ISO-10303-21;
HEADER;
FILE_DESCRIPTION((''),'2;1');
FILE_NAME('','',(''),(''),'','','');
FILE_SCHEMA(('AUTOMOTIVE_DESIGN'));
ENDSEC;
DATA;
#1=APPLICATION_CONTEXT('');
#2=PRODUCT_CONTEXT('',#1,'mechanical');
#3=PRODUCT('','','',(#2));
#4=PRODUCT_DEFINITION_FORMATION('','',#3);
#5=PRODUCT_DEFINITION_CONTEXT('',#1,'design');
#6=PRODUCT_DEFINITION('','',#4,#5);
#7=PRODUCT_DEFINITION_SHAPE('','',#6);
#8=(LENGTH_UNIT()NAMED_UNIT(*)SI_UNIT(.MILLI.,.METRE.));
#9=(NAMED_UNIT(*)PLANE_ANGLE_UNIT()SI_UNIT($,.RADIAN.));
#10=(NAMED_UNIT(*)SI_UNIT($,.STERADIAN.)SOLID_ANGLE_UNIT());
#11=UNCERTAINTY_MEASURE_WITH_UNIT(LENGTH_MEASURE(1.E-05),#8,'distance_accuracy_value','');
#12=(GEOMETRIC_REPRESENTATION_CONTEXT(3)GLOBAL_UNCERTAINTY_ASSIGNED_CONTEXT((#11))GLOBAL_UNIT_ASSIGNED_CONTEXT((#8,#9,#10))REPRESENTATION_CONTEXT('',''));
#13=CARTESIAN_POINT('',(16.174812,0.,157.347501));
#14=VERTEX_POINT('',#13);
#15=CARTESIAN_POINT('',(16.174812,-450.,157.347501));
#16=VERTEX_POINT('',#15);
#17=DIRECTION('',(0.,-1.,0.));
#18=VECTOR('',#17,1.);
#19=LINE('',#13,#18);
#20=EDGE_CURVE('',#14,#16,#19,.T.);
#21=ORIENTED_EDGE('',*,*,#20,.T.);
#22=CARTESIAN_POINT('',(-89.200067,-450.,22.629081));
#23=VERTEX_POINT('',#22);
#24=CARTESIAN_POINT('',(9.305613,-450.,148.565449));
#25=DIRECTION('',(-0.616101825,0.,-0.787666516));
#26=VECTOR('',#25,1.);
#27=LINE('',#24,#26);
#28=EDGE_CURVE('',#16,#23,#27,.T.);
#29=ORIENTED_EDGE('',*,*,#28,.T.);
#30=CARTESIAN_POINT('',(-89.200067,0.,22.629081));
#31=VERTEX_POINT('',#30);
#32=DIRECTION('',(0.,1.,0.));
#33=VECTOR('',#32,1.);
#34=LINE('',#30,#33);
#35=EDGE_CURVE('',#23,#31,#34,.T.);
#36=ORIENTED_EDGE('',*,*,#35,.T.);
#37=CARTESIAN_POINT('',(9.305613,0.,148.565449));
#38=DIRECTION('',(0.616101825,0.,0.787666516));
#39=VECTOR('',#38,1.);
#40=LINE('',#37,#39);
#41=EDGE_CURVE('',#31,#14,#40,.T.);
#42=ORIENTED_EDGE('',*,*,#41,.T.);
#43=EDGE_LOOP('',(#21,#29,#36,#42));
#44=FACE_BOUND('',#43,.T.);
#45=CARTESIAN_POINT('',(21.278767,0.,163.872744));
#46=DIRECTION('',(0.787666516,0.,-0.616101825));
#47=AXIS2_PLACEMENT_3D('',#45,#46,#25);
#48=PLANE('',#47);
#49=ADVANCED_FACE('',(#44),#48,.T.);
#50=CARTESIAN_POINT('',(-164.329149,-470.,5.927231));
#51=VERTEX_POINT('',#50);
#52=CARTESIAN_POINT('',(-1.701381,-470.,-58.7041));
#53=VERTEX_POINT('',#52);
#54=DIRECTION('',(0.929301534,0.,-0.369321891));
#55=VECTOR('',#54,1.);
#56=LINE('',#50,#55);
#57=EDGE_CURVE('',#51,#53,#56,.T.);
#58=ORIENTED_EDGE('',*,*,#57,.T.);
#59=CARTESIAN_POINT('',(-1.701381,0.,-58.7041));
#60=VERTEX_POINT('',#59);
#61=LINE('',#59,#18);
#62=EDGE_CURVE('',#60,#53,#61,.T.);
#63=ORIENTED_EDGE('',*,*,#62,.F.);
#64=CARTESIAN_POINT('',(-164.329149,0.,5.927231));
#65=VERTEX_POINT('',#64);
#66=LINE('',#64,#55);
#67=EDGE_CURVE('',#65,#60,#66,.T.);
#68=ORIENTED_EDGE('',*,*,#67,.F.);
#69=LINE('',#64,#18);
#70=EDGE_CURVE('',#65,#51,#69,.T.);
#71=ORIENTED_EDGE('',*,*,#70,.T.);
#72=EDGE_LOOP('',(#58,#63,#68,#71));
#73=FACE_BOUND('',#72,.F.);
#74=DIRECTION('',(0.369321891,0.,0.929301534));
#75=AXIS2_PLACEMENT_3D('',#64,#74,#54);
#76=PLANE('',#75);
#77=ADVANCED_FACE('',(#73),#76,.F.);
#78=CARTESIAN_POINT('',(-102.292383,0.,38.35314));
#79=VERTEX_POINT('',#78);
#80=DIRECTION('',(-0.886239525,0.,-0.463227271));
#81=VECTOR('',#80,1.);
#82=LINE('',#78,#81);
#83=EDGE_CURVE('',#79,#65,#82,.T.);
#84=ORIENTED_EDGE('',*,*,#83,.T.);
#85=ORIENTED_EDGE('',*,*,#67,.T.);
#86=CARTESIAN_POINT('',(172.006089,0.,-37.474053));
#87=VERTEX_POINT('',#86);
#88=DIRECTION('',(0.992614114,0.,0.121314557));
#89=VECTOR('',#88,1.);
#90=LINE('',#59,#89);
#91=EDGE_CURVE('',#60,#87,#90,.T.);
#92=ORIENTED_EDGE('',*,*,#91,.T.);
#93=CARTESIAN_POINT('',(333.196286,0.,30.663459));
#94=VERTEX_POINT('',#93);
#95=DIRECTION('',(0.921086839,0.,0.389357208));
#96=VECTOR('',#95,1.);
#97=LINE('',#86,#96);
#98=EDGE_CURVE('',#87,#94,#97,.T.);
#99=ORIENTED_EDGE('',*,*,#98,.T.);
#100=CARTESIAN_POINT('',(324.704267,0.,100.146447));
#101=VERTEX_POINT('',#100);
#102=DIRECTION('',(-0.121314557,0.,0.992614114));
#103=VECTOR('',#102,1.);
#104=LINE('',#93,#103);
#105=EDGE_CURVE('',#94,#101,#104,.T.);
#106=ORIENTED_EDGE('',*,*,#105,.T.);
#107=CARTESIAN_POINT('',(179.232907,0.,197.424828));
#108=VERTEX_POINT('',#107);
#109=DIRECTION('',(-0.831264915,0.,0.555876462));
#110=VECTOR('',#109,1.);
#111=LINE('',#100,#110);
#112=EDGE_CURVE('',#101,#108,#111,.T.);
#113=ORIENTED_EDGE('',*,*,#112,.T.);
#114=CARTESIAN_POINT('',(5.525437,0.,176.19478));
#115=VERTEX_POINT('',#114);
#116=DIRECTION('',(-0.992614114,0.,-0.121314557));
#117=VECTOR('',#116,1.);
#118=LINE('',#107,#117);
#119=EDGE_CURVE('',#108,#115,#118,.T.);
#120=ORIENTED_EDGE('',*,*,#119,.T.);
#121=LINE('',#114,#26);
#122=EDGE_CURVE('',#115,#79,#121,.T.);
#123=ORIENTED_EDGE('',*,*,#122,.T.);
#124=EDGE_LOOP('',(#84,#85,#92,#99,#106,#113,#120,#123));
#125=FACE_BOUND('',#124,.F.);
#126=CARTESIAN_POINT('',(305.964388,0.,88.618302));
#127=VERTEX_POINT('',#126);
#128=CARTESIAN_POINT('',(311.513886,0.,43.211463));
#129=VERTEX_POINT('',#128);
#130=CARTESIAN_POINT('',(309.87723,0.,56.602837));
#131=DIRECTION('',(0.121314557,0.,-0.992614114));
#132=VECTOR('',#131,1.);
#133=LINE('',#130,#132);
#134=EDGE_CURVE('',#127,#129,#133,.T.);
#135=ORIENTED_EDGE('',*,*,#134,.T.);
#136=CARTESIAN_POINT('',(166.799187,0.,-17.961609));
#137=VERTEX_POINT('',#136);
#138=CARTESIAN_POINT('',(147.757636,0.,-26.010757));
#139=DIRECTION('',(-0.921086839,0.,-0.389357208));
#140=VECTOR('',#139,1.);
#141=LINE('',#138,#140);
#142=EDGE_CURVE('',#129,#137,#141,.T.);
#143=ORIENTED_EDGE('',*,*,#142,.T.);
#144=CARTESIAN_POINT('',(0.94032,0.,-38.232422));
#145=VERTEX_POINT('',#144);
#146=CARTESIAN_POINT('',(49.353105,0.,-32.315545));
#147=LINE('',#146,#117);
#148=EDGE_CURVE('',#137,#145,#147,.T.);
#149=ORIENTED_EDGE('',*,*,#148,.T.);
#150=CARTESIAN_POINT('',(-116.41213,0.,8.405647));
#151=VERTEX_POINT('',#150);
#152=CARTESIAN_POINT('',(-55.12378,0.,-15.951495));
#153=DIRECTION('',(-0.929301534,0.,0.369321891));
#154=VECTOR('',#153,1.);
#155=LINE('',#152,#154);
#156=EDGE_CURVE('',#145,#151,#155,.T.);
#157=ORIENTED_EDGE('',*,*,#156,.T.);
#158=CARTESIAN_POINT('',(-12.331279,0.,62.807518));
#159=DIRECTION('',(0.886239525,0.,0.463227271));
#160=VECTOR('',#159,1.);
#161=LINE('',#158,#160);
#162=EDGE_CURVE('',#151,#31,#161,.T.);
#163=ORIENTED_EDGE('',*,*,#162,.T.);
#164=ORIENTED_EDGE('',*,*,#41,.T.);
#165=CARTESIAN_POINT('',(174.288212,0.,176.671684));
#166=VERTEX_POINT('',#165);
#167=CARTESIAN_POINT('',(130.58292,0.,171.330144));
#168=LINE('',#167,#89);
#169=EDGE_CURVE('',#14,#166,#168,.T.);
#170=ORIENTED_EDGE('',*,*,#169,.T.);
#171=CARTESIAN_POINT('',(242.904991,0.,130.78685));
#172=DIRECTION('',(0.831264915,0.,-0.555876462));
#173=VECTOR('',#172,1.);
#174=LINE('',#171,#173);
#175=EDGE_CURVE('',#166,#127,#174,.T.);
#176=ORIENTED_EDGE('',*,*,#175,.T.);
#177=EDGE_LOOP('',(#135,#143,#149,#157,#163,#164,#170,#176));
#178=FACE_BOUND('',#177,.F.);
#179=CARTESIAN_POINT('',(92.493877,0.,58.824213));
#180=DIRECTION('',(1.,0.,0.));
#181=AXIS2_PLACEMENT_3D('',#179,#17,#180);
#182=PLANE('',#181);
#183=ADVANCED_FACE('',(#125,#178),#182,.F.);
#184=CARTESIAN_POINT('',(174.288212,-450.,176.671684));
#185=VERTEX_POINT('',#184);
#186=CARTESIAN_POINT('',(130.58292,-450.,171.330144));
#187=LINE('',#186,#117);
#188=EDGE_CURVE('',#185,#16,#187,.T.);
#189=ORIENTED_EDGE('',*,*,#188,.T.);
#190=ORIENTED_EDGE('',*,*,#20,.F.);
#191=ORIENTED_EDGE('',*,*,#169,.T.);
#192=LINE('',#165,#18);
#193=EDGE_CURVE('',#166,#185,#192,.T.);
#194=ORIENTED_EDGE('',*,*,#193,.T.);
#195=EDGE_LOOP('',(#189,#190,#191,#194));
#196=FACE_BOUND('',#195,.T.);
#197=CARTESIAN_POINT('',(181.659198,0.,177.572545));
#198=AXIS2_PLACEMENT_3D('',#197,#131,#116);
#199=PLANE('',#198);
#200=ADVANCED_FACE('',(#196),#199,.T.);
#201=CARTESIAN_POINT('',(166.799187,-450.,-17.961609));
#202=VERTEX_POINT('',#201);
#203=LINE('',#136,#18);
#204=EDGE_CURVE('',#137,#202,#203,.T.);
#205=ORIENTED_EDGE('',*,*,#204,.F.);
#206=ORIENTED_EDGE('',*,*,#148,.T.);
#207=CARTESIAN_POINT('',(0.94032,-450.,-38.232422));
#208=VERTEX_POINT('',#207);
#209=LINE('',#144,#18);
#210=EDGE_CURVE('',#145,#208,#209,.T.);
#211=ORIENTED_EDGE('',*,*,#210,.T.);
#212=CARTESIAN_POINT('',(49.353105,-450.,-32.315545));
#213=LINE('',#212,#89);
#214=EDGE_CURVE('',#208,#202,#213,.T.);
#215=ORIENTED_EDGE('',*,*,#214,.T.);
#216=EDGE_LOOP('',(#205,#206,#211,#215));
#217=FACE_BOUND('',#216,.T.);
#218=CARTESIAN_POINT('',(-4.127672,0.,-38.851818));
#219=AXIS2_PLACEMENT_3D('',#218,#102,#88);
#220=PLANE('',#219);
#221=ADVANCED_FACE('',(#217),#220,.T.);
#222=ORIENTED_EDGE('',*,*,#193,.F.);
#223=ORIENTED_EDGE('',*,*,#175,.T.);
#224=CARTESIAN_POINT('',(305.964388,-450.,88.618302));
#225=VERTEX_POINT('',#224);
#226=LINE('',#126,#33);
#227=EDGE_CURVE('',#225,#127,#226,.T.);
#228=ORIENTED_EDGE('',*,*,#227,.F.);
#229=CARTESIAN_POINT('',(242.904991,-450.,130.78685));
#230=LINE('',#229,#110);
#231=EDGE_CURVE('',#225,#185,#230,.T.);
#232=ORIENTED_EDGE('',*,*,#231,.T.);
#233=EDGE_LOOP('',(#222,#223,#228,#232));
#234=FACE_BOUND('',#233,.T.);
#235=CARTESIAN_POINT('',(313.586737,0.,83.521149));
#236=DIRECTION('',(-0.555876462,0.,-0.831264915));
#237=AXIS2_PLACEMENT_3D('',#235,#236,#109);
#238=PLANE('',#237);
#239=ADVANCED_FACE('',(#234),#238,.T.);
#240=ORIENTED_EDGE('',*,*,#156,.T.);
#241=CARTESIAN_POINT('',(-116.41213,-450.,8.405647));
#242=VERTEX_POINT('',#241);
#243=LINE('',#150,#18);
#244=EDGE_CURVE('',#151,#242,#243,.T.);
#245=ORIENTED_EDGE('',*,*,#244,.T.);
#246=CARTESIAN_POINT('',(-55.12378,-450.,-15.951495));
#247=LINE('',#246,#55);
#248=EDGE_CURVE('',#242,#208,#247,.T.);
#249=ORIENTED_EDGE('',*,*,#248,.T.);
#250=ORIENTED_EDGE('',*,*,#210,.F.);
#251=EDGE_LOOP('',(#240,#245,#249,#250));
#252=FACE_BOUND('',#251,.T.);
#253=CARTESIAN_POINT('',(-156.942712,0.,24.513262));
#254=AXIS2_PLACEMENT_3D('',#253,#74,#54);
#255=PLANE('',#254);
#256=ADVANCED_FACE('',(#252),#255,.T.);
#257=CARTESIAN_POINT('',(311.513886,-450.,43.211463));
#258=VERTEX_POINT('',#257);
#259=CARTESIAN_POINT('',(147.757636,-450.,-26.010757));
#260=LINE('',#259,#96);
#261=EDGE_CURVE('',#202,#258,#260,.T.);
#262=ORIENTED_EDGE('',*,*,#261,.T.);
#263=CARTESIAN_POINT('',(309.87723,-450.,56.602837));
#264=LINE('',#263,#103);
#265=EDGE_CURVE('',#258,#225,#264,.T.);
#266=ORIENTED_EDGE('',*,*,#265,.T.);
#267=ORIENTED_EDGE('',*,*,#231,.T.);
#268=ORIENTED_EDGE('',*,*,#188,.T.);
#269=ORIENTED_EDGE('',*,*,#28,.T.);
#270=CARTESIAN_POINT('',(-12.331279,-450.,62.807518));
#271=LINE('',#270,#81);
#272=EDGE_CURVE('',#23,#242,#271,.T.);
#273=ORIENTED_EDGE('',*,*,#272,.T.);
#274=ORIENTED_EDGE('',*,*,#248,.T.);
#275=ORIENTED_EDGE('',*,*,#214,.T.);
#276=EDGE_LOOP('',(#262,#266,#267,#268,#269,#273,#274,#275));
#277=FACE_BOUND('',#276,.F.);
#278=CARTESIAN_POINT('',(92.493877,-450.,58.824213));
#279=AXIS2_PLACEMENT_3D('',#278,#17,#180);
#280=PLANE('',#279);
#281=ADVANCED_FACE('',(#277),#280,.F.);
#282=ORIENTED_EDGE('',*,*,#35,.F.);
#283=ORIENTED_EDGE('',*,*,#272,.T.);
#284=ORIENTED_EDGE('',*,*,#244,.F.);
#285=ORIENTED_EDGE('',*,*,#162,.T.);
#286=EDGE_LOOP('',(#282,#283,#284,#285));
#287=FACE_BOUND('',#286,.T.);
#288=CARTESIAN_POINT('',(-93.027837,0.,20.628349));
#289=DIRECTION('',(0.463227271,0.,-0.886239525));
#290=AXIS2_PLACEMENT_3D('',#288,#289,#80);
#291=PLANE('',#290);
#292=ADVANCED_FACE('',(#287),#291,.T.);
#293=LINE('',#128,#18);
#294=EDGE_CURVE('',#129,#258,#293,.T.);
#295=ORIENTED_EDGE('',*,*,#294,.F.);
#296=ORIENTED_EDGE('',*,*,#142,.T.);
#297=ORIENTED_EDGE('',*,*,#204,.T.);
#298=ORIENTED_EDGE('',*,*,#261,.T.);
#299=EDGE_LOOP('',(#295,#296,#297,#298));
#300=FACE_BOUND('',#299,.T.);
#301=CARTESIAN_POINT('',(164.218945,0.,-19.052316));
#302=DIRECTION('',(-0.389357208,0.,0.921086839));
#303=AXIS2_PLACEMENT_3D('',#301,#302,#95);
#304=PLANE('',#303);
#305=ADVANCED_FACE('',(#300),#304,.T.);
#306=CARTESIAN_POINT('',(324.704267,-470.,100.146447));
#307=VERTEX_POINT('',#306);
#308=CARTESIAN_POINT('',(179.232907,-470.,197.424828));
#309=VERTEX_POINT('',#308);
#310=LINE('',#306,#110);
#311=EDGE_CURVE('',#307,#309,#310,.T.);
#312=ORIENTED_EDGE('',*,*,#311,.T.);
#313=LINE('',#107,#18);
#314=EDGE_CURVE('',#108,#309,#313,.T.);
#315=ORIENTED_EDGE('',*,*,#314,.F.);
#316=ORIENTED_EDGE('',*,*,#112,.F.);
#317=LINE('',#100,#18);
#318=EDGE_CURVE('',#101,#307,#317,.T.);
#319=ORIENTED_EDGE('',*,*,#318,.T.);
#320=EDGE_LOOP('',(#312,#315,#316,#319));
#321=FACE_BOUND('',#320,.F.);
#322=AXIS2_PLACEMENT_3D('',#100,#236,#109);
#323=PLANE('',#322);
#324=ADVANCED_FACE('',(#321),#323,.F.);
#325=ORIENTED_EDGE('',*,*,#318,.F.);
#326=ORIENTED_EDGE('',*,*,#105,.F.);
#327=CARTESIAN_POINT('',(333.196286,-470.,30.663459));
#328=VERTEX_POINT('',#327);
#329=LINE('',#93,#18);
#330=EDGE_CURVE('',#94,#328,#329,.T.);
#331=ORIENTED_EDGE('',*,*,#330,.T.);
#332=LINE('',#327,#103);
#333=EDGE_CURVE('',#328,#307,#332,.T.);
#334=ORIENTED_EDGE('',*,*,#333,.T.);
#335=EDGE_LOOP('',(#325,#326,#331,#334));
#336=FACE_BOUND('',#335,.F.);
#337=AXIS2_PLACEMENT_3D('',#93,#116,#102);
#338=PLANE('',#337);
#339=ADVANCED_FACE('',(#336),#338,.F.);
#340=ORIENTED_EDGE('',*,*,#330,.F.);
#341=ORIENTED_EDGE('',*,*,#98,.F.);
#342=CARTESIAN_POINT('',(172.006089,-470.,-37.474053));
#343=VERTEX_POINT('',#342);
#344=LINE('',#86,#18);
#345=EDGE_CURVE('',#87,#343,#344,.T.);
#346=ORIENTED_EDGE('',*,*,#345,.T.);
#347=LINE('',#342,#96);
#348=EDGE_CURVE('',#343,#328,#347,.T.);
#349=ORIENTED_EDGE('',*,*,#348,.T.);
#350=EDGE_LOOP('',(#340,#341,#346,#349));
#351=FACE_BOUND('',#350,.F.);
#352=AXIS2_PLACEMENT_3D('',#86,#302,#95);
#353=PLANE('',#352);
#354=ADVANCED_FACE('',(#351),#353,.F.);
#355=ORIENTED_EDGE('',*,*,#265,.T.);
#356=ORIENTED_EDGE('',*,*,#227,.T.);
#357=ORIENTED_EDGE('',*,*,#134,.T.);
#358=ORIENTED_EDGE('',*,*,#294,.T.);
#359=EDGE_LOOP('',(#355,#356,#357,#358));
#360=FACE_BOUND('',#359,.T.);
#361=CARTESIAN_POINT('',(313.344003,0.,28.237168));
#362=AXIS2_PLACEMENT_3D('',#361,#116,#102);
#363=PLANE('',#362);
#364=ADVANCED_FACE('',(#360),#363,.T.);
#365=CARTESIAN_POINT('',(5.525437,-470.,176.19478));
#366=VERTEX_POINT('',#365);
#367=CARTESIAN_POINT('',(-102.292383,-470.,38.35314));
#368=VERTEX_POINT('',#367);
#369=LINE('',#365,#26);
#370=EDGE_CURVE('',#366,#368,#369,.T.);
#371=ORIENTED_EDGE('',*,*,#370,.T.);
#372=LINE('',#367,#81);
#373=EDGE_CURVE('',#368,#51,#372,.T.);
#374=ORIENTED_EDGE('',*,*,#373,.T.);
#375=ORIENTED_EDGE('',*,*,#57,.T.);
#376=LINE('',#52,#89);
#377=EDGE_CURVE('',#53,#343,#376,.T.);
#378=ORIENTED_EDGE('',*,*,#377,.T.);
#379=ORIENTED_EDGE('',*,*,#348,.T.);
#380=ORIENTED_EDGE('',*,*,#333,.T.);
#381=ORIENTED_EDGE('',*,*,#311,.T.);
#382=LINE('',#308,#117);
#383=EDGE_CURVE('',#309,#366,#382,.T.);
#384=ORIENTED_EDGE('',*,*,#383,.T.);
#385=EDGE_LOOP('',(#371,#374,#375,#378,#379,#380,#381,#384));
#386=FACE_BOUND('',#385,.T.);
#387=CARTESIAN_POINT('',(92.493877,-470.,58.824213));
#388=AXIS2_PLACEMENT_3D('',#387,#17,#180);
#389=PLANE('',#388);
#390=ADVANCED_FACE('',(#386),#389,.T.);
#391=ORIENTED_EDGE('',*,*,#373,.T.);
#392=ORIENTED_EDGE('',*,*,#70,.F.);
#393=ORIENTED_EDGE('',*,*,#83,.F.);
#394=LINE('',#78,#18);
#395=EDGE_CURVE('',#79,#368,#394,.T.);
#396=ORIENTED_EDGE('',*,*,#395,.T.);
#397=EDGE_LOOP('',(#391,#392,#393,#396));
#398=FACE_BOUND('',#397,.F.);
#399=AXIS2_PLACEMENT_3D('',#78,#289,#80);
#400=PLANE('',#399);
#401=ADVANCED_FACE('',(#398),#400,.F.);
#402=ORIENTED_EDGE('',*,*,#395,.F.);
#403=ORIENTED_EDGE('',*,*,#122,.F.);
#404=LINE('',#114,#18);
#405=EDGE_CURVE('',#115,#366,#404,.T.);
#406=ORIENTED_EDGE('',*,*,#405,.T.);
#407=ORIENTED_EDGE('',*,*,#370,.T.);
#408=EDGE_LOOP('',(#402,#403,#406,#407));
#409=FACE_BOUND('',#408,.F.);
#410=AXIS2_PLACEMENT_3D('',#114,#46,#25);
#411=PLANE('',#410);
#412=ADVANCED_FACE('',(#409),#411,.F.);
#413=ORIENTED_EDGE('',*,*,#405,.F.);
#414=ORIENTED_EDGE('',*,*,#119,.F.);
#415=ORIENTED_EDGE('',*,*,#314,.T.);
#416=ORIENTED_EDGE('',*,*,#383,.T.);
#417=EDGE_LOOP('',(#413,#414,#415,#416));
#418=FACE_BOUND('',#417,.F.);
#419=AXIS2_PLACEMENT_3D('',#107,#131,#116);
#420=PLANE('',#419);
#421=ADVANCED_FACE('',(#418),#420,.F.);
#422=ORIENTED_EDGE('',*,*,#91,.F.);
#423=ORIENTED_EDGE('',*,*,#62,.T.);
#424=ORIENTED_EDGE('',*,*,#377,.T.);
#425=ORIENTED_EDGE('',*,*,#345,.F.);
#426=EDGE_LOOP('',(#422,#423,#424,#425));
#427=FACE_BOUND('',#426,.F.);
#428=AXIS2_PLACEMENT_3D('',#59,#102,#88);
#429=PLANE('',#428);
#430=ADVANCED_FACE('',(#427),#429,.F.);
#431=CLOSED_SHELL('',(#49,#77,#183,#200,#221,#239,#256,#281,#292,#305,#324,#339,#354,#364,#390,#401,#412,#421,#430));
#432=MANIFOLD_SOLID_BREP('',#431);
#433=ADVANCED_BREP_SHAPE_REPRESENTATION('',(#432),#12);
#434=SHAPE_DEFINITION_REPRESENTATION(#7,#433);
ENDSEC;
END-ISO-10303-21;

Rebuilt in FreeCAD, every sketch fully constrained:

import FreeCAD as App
import Part
import Sketcher
Q = App.Units.Quantity


def faces_at(feature, points):
    """Names of the faces that lie closest to the given points."""
    faces = feature.Shape.Faces
    near = lambda p: min(range(len(faces)), key=lambda i: faces[i].distToShape(Part.Vertex(*p))[0])
    return sorted({f"Face{near(p) + 1}" for p in points})


def add_polygon(sketch, points):
    """Adds a closed chain of lines whose ends are joined by coincident constraints."""
    first, n = sketch.GeometryCount, len(points)
    for a, b in zip(points, points[1:] + points[:1]):
        sketch.addGeometry(Part.LineSegment(App.Vector(*a, 0), App.Vector(*b, 0)), False)
    for i in range(n):
        sketch.addConstraint(Sketcher.Constraint("Coincident", first + i, 2, first + (i + 1) % n, 1))

doc = App.newDocument("Part")
body = doc.addObject("PartDesign::Body", "Body")

# Sketch on XZ plane
sketch1 = doc.addObject("Sketcher::SketchObject", "Sketch")
body.addObject(sketch1)
sketch1.AttachmentSupport = (doc.XZ_Plane, [""])
sketch1.MapMode = "FlatFace"
add_polygon(sketch1, [(324.704267, 100.146447), (179.232907, 197.424828), (5.525437, 176.19478), (-102.292383, 38.35314), (-164.329149, 5.927231), (-1.701381, -58.7041), (172.006089, -37.474053), (333.196286, 30.663459)])  # lines 0-7
sketch1.addConstraint([
    Sketcher.Constraint("Parallel", 1, 5),
    Sketcher.Constraint("Perpendicular", 5, 7),
    Sketcher.Constraint("Equal", 0, 1),
    Sketcher.Constraint("Equal", 1, 2),
    Sketcher.Constraint("Equal", 2, 4),
    Sketcher.Constraint("Equal", 4, 5),
    Sketcher.Constraint("Equal", 5, 6),
    Sketcher.Constraint("Equal", 3, 7),
    Sketcher.Constraint("Distance", 0, Q("175 mm")),
    Sketcher.Constraint("Distance", 3, Q("70 mm")),
    Sketcher.Constraint("DistanceX", 2, 2, 4, 2, Q("100.591002 mm")),
    Sketcher.Constraint("DistanceY", 4, 2, -1, 1, Q("58.7041 mm")),
    Sketcher.Constraint("DistanceY", 5, 2, 7, 2, Q("137.620499 mm")),
    Sketcher.Constraint("DistanceY", -1, 1, 1, 2, Q("176.19478 mm")),
    Sketcher.Constraint("DistanceY", -1, 1, 2, 2, Q("38.35314 mm")),
    Sketcher.Constraint("DistanceX", 3, 2, -1, 1, Q("164.329149 mm")),
])
pad1 = doc.addObject("PartDesign::Pad", "Pad")
body.addObject(pad1)
pad1.Profile = sketch1
pad1.Length = 470
doc.recompute()

thickness = doc.addObject("PartDesign::Thickness", "Thickness")
body.addObject(thickness)
thickness.Base = (pad1, faces_at(pad1, [(84.434, 0, 69.36)]))
thickness.Value = 20
thickness.Reversed = True
thickness.Join = "Intersection"

doc.recompute()
